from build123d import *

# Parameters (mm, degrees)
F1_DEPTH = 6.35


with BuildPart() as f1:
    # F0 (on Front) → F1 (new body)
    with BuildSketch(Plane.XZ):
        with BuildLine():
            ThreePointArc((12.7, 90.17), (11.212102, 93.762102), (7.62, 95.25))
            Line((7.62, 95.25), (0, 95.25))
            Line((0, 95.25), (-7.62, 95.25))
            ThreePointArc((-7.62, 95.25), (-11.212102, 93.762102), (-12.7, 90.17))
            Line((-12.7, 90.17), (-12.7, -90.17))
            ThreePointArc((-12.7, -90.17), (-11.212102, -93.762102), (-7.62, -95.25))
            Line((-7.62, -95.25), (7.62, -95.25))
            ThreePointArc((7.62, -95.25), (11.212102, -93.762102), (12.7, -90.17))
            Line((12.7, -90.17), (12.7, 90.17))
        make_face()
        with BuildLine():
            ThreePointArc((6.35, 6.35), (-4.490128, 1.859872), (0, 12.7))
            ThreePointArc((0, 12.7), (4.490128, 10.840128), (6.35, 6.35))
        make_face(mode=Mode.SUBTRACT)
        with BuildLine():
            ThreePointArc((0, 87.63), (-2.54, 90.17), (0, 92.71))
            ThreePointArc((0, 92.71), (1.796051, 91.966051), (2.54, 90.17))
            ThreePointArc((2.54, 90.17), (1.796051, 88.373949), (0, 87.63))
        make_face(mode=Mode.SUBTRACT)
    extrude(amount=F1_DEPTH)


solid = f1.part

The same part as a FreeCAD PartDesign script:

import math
import FreeCAD as App
import Part
import Sketcher

V = App.Vector
Q = App.Units.Quantity

doc = App.newDocument("Part")
body = doc.addObject("PartDesign::Body", "Body")

sketch1 = body.newObject("Sketcher::SketchObject", "Sketch")
sketch1.AttachmentSupport = (doc.getObject("XZ_Plane"), [""])
sketch1.MapMode = "FlatFace"
sketch1.addGeometry([
    Part.ArcOfCircle(Part.Circle(V(7.619998, 90.169998, 0), V(0, 0, 1), 5.080002), math.radians(0.000017), math.radians(89.999983)),
    Part.LineSegment(V(7.62, 95.25, 0), V(-7.62, 95.25, 0)),
    Part.ArcOfCircle(Part.Circle(V(-7.619998, 90.169998, 0), V(0, 0, 1), 5.080002), math.radians(90.000017), math.radians(179.999983)),
    Part.LineSegment(V(-12.7, 90.17, 0), V(-12.7, -90.17, 0)),
    Part.ArcOfCircle(Part.Circle(V(-7.619998, -90.169998, 0), V(0, 0, 1), 5.080002), math.radians(-179.999983), math.radians(-90.000017)),
    Part.LineSegment(V(-7.62, -95.25, 0), V(7.62, -95.25, 0)),
    Part.ArcOfCircle(Part.Circle(V(7.619998, -90.169998, 0), V(0, 0, 1), 5.080002), math.radians(-89.999983), math.radians(-0.000017)),
    Part.LineSegment(V(12.7, -90.17, 0), V(12.7, 90.17, 0)),
    Part.ArcOfCircle(Part.Circle(V(0, 6.35, 0), V(0, 0, 1), 6.35), math.radians(0.000002), math.radians(89.999998)),
    Part.ArcOfCircle(Part.Circle(V(0, 6.35, 0), V(0, 0, 1), 6.35), math.radians(90), math.radians(360)),
    Part.ArcOfCircle(Part.Circle(V(-0.000001, 90.170001, 0), V(0, 0, 1), 2.540001), math.radians(-89.999983), math.radians(-0.000017)),
    Part.ArcOfCircle(Part.Circle(V(0, 90.17, 0), V(0, 0, 1), 2.54), math.radians(90), math.radians(270)),
    Part.ArcOfCircle(Part.Circle(V(-0.000001, 90.169999, 0), V(0, 0, 1), 2.540001), math.radians(0.000017), math.radians(89.999983)),
], False)
sketch1.addConstraint([
    Sketcher.Constraint("Tangent", 0, 2, 1, 1),
    Sketcher.Constraint("Tangent", 1, 2, 2, 1),
    Sketcher.Constraint("Tangent", 2, 2, 3, 1),
    Sketcher.Constraint("Tangent", 3, 2, 4, 1),
    Sketcher.Constraint("Tangent", 4, 2, 5, 1),
    Sketcher.Constraint("Tangent", 5, 2, 6, 1),
    Sketcher.Constraint("Tangent", 6, 2, 7, 1),
    Sketcher.Constraint("Tangent", 7, 2, 0, 1),
    Sketcher.Constraint("Tangent", 8, 1, 9, 2),
    Sketcher.Constraint("Coincident", 9, 1, 8, 2),
    Sketcher.Constraint("Tangent", 10, 1, 11, 2),
    Sketcher.Constraint("Tangent", 11, 1, 12, 2),
    Sketcher.Constraint("Tangent", 12, 1, 10, 2),
    Sketcher.Constraint("Horizontal", 1),
    Sketcher.Constraint("Vertical", 3),
    Sketcher.Constraint("Horizontal", 5),
    Sketcher.Constraint("Vertical", 7),
    Sketcher.Constraint("Equal", 0, 2),
    Sketcher.Constraint("Equal", 2, 4),
    Sketcher.Constraint("Equal", 4, 6),
    Sketcher.Constraint("Symmetric", 0, 3, 4, 3, -1, 1),
    Sketcher.Constraint("PointOnObject", 8, 3, -2),
    Sketcher.Constraint("PointOnObject", 10, 3, -2),
    Sketcher.Constraint("PointOnObject", 9, 1, -2),
    Sketcher.Constraint("PointOnObject", 10, 1, -2),
    Sketcher.Constraint("PointOnObject", 11, 1, -2),
    Sketcher.Constraint("Horizontal", 2, 3, 11, 3),
    Sketcher.Constraint("Horizontal", 9, 3, 8, 1),
    Sketcher.Constraint("Horizontal", 7, 2, 12, 1),
    Sketcher.Constraint("Radius", 0, Q("0.2000001 in")),
    Sketcher.Constraint("Radius", 10, Q("0.1 in")),
    Sketcher.Constraint("Radius", 8, Q("0.25 in")),
    Sketcher.Constraint("DistanceX", 1, 2, 1, 1, Q("0.6 in")),
    Sketcher.Constraint("DistanceY", 3, 2, 3, 1, Q("7.1 in")),
    Sketcher.Constraint("DistanceY", 4, 2, 8, 3, Q("4 in")),
])
pad1 = body.newObject("PartDesign::Pad", "Pad")
pad1.Profile = sketch1
pad1.Length = Q("0.25 in")

doc.recompute()
